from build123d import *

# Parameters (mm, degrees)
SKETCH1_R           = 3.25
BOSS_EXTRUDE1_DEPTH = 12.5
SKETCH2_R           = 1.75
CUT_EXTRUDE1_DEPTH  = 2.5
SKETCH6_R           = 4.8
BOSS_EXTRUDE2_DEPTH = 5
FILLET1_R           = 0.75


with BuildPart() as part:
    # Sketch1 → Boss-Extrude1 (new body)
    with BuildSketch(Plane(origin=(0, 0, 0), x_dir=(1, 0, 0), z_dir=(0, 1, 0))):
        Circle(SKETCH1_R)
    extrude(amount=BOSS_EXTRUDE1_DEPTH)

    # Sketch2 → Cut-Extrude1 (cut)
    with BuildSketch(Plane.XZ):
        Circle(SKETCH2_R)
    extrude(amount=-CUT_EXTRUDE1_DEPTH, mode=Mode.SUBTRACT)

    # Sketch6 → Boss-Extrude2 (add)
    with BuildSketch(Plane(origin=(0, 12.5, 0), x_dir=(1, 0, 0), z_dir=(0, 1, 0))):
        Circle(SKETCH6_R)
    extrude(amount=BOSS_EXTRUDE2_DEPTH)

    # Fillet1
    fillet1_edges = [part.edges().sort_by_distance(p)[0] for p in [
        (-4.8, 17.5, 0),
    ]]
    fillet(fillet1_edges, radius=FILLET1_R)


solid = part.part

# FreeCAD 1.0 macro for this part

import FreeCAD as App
import Part
import Sketcher

V = App.Vector


def edges_at(feature, points):
    """Names of the edges that pass closest to the given points."""
    edges = feature.Shape.Edges
    near = lambda p: min(range(len(edges)), key=lambda i: edges[i].distToShape(Part.Vertex(*p))[0])
    return sorted({f"Edge{near(p) + 1}" for p in points})

doc = App.newDocument("Part")
body = doc.addObject("PartDesign::Body", "Body")

sketch1 = doc.addObject("Sketcher::SketchObject", "Sketch")
body.addObject(sketch1)
sketch1.AttachmentSupport = (doc.XZ_Plane, [""])
sketch1.MapMode = "FlatFace"
sketch1.addGeometry(Part.Circle(V(0, 0, 0), V(0, 0, 1), 3.25), False)
sketch1.addConstraint([
    Sketcher.Constraint("Coincident", 0, 3, -1, 1),
    Sketcher.Constraint("Diameter", 0, 6.5),
])
pad1 = doc.addObject("PartDesign::Pad", "Pad")
body.addObject(pad1)
pad1.Profile = sketch1
pad1.Length = 12.5
pad1.Reversed = True

sketch2 = doc.addObject("Sketcher::SketchObject", "Sketch001")
body.addObject(sketch2)
sketch2.AttachmentSupport = (doc.XZ_Plane, [""])
sketch2.MapMode = "FlatFace"
sketch2.addGeometry(Part.Circle(V(0, 0, 0), V(0, 0, 1), 1.75), False)
sketch2.addConstraint([
    Sketcher.Constraint("Coincident", 0, 3, -1, 1),
    Sketcher.Constraint("Diameter", 0, 3.5),
])
pocket1 = doc.addObject("PartDesign::Pocket", "Pocket")
body.addObject(pocket1)
pocket1.Profile = sketch2
pocket1.Length = 2.5

sketch3 = doc.addObject("Sketcher::SketchObject", "Sketch002")
body.addObject(sketch3)
sketch3.AttachmentSupport = (doc.XZ_Plane, [""])
sketch3.MapMode = "FlatFace"
sketch3.AttachmentOffset = App.Placement(V(0, 0, -12.5), App.Rotation())
sketch3.addGeometry(Part.Circle(V(0, 0, 0), V(0, 0, 1), 4.8), False)
sketch3.addConstraint([
    Sketcher.Constraint("Coincident", 0, 3, -1, 1),
    Sketcher.Constraint("Diameter", 0, 9.6),
])
pad2 = doc.addObject("PartDesign::Pad", "Pad001")
body.addObject(pad2)
pad2.Profile = sketch3
pad2.Length = 5
pad2.Reversed = True
doc.recompute()

fillet = doc.addObject("PartDesign::Fillet", "Fillet")
body.addObject(fillet)
fillet.Base = (pad2, edges_at(pad2, [(-4.8, 17.5, 0)]))
fillet.Radius = 0.75

doc.recompute()
